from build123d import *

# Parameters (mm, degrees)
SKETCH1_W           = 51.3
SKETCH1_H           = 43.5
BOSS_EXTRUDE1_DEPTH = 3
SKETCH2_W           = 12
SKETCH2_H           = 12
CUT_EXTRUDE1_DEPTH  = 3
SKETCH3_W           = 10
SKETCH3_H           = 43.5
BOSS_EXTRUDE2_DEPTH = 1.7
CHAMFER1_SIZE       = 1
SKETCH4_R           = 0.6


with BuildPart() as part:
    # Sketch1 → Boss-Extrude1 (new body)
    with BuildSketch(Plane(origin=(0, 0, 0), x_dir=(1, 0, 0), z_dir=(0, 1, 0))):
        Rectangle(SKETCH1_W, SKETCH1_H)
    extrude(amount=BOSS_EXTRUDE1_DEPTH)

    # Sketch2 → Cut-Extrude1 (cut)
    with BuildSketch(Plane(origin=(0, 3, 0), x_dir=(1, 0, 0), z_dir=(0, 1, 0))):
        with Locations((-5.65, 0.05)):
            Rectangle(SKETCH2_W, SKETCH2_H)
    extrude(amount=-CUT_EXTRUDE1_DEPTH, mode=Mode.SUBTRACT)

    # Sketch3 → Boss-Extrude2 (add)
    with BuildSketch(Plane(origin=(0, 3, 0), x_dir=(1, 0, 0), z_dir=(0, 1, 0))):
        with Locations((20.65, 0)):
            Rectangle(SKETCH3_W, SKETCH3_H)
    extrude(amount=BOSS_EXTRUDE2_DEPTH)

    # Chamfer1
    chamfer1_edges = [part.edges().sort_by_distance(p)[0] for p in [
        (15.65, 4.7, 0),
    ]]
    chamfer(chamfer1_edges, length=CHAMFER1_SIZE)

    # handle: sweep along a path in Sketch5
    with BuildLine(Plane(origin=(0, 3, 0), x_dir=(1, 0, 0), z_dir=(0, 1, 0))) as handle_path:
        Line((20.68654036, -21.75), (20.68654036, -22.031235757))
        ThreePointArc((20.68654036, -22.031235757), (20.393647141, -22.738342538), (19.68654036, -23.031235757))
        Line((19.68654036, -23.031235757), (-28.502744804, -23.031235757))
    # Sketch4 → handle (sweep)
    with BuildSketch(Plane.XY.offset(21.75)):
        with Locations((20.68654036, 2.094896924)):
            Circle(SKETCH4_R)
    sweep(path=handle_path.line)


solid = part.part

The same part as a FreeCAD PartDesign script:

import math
import FreeCAD as App
import Part
import Sketcher

V = App.Vector


def edges_at(feature, points):
    """Names of the edges that pass closest to the given points."""
    edges = feature.Shape.Edges
    near = lambda p: min(range(len(edges)), key=lambda i: edges[i].distToShape(Part.Vertex(*p))[0])
    return sorted({f"Edge{near(p) + 1}" for p in points})

doc = App.newDocument("Part")
body = doc.addObject("PartDesign::Body", "Body")

# Sketch on XZ plane
sketch1 = body.newObject("Sketcher::SketchObject", "Sketch")
sketch1.AttachmentSupport = (doc.getObject("XZ_Plane"), [""])
sketch1.MapMode = "FlatFace"
sketch1.addGeometry(Part.LineSegment(V(-25.65, -21.75, 0), V(-25.65, 21.75, 0)), False)
sketch1.addGeometry(Part.LineSegment(V(-25.65, 21.75, 0), V(25.65, 21.75, 0)), False)
sketch1.addGeometry(Part.LineSegment(V(25.65, 21.75, 0), V(25.65, -21.75, 0)), False)
sketch1.addGeometry(Part.LineSegment(V(25.65, -21.75, 0), V(-25.65, -21.75, 0)), False)
sketch1.addConstraint(Sketcher.Constraint("Coincident", 0, 2, 1, 1))
sketch1.addConstraint(Sketcher.Constraint("Coincident", 1, 2, 2, 1))
sketch1.addConstraint(Sketcher.Constraint("Coincident", 2, 2, 3, 1))
sketch1.addConstraint(Sketcher.Constraint("Coincident", 3, 2, 0, 1))
sketch1.addConstraint(Sketcher.Constraint("Vertical", 0))
sketch1.addConstraint(Sketcher.Constraint("Horizontal", 1))
sketch1.addConstraint(Sketcher.Constraint("Vertical", 2))
sketch1.addConstraint(Sketcher.Constraint("Horizontal", 3))
sketch1.addConstraint(Sketcher.Constraint("Symmetric", 0, 2, 2, 2, -1, 1))
sketch1.addConstraint(Sketcher.Constraint("DistanceX", 1, 1, 1, 2, 51.3))
sketch1.addConstraint(Sketcher.Constraint("DistanceY", 0, 1, 0, 2, 43.5))
pad1 = body.newObject("PartDesign::Pad", "Pad")
pad1.Profile = sketch1
pad1.Length = 3
pad1.Reversed = True

# Sketch on XZ plane
sketch2 = body.newObject("Sketcher::SketchObject", "Sketch001")
sketch2.AttachmentSupport = (doc.getObject("XZ_Plane"), [""])
sketch2.MapMode = "FlatFace"
sketch2.AttachmentOffset = App.Placement(V(0, 0, -3), App.Rotation())
sketch2.addGeometry(Part.LineSegment(V(-11.65, -6.05, 0), V(-11.65, 5.95, 0)), False)
sketch2.addGeometry(Part.LineSegment(V(-11.65, 5.95, 0), V(0.35, 5.95, 0)), False)
sketch2.addGeometry(Part.LineSegment(V(0.35, 5.95, 0), V(0.35, -6.05, 0)), False)
sketch2.addGeometry(Part.LineSegment(V(0.35, -6.05, 0), V(-11.65, -6.05, 0)), False)
sketch2.addConstraint(Sketcher.Constraint("Coincident", 0, 2, 1, 1))
sketch2.addConstraint(Sketcher.Constraint("Coincident", 1, 2, 2, 1))
sketch2.addConstraint(Sketcher.Constraint("Coincident", 2, 2, 3, 1))
sketch2.addConstraint(Sketcher.Constraint("Coincident", 3, 2, 0, 1))
sketch2.addConstraint(Sketcher.Constraint("Vertical", 0))
sketch2.addConstraint(Sketcher.Constraint("Horizontal", 1))
sketch2.addConstraint(Sketcher.Constraint("Vertical", 2))
sketch2.addConstraint(Sketcher.Constraint("Horizontal", 3))
sketch2.addConstraint(Sketcher.Constraint("Equal", 3, 0))
sketch2.addConstraint(Sketcher.Constraint("DistanceX", 1, 1, 1, 2, 12.0))
sketch2.addConstraint(Sketcher.Constraint("DistanceX", 0, 2, -1, 1, 11.65))
sketch2.addConstraint(Sketcher.Constraint("DistanceY", -1, 1, 0, 2, 5.95))
pocket1 = body.newObject("PartDesign::Pocket", "Pocket")
pocket1.Profile = sketch2
pocket1.Length = 3
pocket1.Reversed = True

# Sketch on XZ plane
sketch3 = body.newObject("Sketcher::SketchObject", "Sketch002")
sketch3.AttachmentSupport = (doc.getObject("XZ_Plane"), [""])
sketch3.MapMode = "FlatFace"
sketch3.AttachmentOffset = App.Placement(V(0, 0, -3), App.Rotation())
sketch3.addGeometry(Part.LineSegment(V(15.65, -21.75, 0), V(15.65, 21.75, 0)), False)
sketch3.addGeometry(Part.LineSegment(V(15.65, 21.75, 0), V(25.65, 21.75, 0)), False)
sketch3.addGeometry(Part.LineSegment(V(25.65, 21.75, 0), V(25.65, -21.75, 0)), False)
sketch3.addGeometry(Part.LineSegment(V(25.65, -21.75, 0), V(15.65, -21.75, 0)), False)
sketch3.addConstraint(Sketcher.Constraint("Coincident", 0, 2, 1, 1))
sketch3.addConstraint(Sketcher.Constraint("Coincident", 1, 2, 2, 1))
sketch3.addConstraint(Sketcher.Constraint("Coincident", 2, 2, 3, 1))
sketch3.addConstraint(Sketcher.Constraint("Coincident", 3, 2, 0, 1))
sketch3.addConstraint(Sketcher.Constraint("Vertical", 0))
sketch3.addConstraint(Sketcher.Constraint("Horizontal", 1))
sketch3.addConstraint(Sketcher.Constraint("Vertical", 2))
sketch3.addConstraint(Sketcher.Constraint("Horizontal", 3))
sketch3.addConstraint(Sketcher.Constraint("DistanceX", 1, 1, 1, 2, 10.0))
sketch3.addConstraint(Sketcher.Constraint("DistanceY", 0, 1, 0, 2, 43.5))
sketch3.addConstraint(Sketcher.Constraint("DistanceX", -1, 1, 0, 2, 15.65))
sketch3.addConstraint(Sketcher.Constraint("DistanceY", -1, 1, 0, 2, 21.75))
pad2 = body.newObject("PartDesign::Pad", "Pad001")
pad2.Profile = sketch3
pad2.Length = 1.7
pad2.Reversed = True
doc.recompute()

chamfer = body.newObject("PartDesign::Chamfer", "Chamfer")
chamfer.Base = (pad2, edges_at(pad2, [(15.65, 4.7, 0)]))
chamfer.Size = 1

# Sketch on XY plane
sketch4 = body.newObject("Sketcher::SketchObject", "Sketch003")
sketch4.AttachmentSupport = (doc.getObject("XY_Plane"), [""])
sketch4.MapMode = "FlatFace"
sketch4.AttachmentOffset = App.Placement(V(0, 0, 21.75), App.Rotation())
sketch4.addGeometry(Part.Circle(V(20.68654, 2.094897, 0), V(0, 0, 1), 0.6), False)
sketch4.addConstraint(Sketcher.Constraint("Diameter", 0, 1.2))
sketch4.addConstraint(Sketcher.Constraint("DistanceX", -1, 1, 0, 3, 20.68654))
sketch4.addConstraint(Sketcher.Constraint("DistanceY", -1, 1, 0, 3, 2.094897))

# Sketch on XZ plane
sketch5 = body.newObject("Sketcher::SketchObject", "Sketch004")
sketch5.AttachmentSupport = (doc.getObject("XZ_Plane"), [""])
sketch5.MapMode = "FlatFace"
sketch5.AttachmentOffset = App.Placement(V(0, 0, -3), App.Rotation())
sketch5.addGeometry(Part.LineSegment(V(20.68654, 21.75, 0), V(20.68654, 22.031236, 0)), False)
sketch5.addGeometry(Part.ArcOfCircle(Part.Circle(V(19.68654, 22.031236, 0), V(0, 0, 1), 1), math.radians(0), math.radians(90)), False)
sketch5.addGeometry(Part.LineSegment(V(19.68654, 23.031236, 0), V(-28.502745, 23.031236, 0)), False)
sketch5.addConstraint(Sketcher.Constraint("Tangent", 0, 2, 1, 1))
sketch5.addConstraint(Sketcher.Constraint("Tangent", 1, 2, 2, 1))
sketch5.addConstraint(Sketcher.Constraint("Vertical", 0))
sketch5.addConstraint(Sketcher.Constraint("Horizontal", 2))
sketch5.addConstraint(Sketcher.Constraint("Radius", 1, 1.0))
sketch5.addConstraint(Sketcher.Constraint("DistanceY", -1, 1, 0, 1, 21.75))
sketch5.addConstraint(Sketcher.Constraint("DistanceX", 2, 2, 2, 1, 48.189285))
sketch5.addConstraint(Sketcher.Constraint("DistanceY", 0, 1, 0, 2, 0.281236))
sketch5.addConstraint(Sketcher.Constraint("DistanceX", -1, 1, 1, 3, 19.68654))
doc.recompute()

additivepipe = body.newObject("PartDesign::AdditivePipe", "AdditivePipe")
additivepipe.Profile = sketch4
additivepipe.Spine = (sketch5, ["Edge1", "Edge2", "Edge3"])

doc.recompute()
